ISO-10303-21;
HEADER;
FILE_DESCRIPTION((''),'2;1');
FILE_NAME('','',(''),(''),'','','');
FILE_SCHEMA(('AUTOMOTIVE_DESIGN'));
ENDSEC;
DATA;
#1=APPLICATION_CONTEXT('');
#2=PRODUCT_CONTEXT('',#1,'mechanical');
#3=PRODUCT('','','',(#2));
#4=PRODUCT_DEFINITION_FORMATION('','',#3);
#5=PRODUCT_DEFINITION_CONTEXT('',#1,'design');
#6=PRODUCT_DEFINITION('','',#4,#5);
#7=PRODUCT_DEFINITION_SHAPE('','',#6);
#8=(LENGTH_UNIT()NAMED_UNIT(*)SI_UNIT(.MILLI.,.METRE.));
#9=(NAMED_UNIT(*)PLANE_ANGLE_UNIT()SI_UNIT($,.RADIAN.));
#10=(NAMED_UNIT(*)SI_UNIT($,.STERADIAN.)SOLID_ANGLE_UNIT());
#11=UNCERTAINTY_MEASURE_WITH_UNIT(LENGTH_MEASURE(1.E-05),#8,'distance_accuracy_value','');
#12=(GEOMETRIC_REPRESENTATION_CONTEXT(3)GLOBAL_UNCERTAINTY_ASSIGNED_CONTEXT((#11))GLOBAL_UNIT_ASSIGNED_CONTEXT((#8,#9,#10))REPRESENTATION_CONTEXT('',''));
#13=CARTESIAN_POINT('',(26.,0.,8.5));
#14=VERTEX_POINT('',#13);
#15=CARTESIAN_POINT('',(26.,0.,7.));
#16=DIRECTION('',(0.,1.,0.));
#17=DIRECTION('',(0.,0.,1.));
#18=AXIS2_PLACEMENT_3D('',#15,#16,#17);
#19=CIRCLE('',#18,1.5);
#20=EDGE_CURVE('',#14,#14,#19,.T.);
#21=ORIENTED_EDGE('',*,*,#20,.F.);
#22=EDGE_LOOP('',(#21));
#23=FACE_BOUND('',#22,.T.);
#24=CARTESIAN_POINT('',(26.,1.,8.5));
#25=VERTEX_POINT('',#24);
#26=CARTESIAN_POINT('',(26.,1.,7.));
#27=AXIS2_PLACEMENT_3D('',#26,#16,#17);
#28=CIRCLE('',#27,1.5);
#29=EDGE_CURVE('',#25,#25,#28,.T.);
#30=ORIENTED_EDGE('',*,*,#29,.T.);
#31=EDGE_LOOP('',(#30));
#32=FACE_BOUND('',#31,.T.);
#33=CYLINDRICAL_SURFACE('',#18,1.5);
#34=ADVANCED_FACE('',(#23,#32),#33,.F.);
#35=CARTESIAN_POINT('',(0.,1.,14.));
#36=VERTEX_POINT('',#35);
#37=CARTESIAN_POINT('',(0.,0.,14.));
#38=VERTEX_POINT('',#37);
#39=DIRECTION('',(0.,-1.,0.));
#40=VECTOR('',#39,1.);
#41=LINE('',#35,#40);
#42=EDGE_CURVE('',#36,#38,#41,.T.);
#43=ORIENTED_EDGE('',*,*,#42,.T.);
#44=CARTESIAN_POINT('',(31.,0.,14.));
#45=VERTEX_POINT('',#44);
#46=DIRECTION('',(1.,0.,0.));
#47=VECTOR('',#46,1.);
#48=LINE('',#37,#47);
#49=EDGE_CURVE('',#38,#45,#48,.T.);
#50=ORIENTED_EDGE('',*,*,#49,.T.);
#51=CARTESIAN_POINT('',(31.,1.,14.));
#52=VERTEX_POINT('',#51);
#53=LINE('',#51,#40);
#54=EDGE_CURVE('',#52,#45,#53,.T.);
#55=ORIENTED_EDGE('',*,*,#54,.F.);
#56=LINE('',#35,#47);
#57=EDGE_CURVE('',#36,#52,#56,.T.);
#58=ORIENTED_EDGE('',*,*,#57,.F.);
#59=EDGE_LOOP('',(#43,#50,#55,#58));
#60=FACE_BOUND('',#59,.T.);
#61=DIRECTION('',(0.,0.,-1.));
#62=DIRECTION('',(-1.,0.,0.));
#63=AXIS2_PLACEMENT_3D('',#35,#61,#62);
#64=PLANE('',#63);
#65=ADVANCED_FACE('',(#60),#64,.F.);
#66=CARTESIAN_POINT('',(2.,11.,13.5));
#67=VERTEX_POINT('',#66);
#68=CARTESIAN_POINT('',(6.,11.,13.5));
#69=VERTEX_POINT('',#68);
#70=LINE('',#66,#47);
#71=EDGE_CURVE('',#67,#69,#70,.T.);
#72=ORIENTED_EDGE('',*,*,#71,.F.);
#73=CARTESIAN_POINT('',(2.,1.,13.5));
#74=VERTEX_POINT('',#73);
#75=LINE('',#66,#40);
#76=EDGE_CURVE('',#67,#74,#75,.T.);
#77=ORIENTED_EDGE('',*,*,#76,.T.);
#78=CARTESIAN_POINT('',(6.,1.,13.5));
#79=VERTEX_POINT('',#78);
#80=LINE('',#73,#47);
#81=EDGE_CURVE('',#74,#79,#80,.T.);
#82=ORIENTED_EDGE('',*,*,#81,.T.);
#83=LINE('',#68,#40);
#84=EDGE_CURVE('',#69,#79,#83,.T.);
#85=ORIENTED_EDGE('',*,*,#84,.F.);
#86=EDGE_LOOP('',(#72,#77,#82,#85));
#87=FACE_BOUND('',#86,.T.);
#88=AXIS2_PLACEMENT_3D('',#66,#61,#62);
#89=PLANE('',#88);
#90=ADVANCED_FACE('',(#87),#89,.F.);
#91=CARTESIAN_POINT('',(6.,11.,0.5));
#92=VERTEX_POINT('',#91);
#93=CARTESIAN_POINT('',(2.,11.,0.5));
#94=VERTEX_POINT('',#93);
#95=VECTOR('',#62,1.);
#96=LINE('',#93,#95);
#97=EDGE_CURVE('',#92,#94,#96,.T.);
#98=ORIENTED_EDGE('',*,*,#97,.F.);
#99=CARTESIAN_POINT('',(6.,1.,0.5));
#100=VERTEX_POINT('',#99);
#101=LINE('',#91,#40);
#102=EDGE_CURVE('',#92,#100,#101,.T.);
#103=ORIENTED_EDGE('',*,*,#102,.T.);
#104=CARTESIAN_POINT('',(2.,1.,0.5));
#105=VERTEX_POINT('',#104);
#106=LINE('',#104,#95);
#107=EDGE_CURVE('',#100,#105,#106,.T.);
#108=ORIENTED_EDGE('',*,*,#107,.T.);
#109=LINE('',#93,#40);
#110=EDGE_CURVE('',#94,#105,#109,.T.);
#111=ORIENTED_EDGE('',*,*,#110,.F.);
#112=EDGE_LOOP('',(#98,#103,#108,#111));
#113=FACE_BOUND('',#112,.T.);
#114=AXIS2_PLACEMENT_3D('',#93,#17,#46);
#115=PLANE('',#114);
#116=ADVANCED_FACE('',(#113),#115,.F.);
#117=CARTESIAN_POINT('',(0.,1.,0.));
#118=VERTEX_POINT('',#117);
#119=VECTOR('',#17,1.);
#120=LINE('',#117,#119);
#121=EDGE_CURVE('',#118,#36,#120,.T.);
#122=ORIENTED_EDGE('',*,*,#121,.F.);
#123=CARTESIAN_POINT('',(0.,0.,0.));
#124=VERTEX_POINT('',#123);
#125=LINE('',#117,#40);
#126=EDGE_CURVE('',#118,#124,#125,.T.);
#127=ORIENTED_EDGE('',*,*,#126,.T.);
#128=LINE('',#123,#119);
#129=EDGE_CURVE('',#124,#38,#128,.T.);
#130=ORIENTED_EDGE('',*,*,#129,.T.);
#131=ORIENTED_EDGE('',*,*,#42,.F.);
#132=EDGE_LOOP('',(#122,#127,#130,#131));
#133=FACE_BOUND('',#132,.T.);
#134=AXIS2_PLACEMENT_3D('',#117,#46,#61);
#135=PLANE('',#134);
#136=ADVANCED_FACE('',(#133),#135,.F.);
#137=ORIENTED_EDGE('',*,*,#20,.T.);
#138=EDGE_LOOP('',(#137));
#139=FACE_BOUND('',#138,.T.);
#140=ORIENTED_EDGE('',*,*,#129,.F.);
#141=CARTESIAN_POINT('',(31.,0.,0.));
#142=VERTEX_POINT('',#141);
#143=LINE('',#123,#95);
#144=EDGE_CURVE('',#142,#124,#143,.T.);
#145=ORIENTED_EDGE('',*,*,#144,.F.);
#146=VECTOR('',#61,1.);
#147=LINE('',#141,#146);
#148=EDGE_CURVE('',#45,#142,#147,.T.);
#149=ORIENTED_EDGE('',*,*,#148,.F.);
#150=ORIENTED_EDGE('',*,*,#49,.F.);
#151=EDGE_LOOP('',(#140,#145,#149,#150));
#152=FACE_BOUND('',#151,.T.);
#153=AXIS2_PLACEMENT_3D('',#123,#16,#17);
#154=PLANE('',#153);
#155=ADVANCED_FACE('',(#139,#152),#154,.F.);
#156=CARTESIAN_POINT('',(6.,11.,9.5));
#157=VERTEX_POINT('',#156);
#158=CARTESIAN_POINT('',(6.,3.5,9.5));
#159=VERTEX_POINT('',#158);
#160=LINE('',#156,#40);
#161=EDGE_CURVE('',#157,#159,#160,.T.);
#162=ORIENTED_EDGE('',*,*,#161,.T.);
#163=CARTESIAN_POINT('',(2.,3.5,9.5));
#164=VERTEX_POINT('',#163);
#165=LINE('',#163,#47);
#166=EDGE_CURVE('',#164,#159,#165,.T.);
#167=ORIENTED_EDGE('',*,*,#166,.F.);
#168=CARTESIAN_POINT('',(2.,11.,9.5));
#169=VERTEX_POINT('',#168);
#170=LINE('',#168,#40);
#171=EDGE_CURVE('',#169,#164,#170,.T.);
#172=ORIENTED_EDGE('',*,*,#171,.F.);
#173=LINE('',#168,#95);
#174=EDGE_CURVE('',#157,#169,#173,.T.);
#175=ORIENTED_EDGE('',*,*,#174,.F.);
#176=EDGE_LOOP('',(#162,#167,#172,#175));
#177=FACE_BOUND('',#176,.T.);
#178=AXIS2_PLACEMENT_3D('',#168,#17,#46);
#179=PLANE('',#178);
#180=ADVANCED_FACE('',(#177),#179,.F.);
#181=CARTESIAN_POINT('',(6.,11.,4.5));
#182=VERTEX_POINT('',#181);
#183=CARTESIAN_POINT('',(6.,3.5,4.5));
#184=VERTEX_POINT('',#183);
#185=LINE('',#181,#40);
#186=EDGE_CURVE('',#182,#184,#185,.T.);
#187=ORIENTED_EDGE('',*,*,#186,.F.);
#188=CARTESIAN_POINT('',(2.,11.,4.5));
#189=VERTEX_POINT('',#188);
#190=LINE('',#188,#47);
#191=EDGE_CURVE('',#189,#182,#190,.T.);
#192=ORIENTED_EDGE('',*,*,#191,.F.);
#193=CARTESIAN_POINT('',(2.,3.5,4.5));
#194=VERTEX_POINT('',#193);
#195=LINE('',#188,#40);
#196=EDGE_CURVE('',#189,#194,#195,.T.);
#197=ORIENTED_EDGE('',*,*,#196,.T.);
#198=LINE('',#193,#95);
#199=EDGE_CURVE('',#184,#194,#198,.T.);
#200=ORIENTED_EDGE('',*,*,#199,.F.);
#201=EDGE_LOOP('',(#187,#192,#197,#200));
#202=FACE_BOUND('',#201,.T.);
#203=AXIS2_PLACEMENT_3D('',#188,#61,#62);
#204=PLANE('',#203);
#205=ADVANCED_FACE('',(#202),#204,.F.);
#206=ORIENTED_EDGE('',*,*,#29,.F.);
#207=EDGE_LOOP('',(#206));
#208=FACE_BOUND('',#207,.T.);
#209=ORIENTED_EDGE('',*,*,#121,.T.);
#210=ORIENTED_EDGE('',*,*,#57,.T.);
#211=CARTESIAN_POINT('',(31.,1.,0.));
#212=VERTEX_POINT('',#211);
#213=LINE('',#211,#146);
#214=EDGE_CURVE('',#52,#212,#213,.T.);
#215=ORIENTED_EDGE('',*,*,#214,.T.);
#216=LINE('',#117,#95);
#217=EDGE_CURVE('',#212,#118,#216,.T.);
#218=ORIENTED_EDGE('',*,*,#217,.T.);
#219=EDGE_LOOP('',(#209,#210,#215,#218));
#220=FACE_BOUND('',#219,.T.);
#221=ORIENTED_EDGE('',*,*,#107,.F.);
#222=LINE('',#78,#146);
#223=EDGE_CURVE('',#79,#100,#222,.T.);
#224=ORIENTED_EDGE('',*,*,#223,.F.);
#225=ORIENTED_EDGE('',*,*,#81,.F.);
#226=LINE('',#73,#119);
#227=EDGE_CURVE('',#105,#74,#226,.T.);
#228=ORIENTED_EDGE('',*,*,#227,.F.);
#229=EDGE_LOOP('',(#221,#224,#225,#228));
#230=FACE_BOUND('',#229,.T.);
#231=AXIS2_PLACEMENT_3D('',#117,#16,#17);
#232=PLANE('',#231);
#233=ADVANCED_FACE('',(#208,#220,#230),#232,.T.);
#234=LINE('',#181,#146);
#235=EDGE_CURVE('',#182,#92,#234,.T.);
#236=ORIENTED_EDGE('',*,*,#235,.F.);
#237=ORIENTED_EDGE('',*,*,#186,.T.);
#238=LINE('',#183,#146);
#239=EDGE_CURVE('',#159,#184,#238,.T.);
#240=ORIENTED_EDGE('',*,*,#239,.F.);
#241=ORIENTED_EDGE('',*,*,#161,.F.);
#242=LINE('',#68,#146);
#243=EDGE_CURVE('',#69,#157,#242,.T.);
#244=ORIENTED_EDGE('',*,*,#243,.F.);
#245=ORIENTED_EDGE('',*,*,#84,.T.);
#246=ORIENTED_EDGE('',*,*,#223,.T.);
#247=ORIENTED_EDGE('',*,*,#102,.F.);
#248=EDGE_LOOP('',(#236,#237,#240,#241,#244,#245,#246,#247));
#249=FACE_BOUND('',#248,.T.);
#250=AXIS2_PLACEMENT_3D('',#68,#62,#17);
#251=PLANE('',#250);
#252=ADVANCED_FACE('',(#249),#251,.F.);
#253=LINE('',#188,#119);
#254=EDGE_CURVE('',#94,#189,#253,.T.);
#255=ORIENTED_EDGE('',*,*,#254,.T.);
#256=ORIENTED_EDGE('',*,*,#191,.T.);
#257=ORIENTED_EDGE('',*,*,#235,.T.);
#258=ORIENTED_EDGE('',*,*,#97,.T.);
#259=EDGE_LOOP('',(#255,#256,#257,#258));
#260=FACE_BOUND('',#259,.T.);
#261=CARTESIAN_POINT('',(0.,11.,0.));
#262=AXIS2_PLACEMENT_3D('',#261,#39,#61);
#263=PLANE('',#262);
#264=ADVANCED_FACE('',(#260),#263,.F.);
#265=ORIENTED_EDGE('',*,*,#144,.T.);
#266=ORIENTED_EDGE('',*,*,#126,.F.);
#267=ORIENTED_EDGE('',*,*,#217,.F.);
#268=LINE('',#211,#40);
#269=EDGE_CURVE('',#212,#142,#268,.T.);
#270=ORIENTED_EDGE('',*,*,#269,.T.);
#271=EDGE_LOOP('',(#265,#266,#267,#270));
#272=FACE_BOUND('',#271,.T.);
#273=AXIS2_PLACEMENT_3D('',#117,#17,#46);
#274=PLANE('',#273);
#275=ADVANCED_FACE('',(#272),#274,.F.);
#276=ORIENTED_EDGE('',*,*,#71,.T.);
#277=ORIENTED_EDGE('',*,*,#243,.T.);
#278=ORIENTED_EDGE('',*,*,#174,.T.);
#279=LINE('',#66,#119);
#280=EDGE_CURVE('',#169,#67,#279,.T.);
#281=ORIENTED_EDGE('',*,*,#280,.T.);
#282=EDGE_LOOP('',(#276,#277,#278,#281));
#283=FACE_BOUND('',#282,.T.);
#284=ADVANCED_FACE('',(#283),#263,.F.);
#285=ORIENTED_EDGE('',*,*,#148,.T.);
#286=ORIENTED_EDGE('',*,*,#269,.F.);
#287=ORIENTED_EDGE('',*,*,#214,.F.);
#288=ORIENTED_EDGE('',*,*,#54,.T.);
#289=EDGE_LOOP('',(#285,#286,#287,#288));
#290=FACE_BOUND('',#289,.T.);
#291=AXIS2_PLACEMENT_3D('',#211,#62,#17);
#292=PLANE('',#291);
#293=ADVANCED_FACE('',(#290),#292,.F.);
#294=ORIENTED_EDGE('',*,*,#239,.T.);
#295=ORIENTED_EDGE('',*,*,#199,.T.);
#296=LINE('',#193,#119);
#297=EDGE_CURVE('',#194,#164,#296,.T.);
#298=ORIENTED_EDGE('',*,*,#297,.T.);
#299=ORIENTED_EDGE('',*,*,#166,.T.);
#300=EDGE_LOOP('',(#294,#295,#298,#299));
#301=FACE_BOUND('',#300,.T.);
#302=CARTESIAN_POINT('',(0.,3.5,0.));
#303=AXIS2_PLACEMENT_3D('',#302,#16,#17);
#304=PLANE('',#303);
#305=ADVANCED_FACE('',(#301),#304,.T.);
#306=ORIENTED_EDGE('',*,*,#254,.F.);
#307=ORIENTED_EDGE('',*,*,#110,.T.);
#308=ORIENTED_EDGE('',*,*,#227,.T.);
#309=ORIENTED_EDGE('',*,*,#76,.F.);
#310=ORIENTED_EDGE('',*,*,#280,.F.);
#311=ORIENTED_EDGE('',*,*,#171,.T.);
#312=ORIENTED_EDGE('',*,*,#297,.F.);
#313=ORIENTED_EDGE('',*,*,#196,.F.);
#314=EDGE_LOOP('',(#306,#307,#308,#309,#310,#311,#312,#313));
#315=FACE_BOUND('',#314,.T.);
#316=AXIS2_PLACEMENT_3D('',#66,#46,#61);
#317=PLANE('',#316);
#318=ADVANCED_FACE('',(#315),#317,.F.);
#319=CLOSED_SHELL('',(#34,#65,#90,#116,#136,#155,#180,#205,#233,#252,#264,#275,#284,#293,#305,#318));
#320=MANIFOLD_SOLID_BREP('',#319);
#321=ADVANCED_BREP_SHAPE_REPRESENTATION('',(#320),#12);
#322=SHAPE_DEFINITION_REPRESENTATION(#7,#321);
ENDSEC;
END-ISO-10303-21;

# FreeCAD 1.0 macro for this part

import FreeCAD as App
import Part
import Sketcher
Q = App.Units.Quantity


def add_polygon(sketch, points):
    """Adds a closed chain of lines whose ends are joined by coincident constraints."""
    first, n = sketch.GeometryCount, len(points)
    for a, b in zip(points, points[1:] + points[:1]):
        sketch.addGeometry(Part.LineSegment(App.Vector(*a, 0), App.Vector(*b, 0)), False)
    for i in range(n):
        sketch.addConstraint(Sketcher.Constraint("Coincident", first + i, 2, first + (i + 1) % n, 1))

doc = App.newDocument("Part")
params = doc.addObject("Spreadsheet::Sheet", "Params")
for row, (alias, value) in enumerate([
    ("sketch1_width", "31 mm"),
    ("sketch1_height", "14 mm"),
    ("pad1_length", "1 mm"),
    ("sketch2_width", "4 mm"),
    ("pad2_length", "10 mm"),
    ("sketch3_diameter", "3 mm"),
    ("sketch4_width", "4 mm"),
    ("sketch4_height", "5 mm"),
    ("pad3_length", "2.5 mm"),
], start=1):
    params.set(f"A{row}", alias)
    params.set(f"B{row}", "=" + value)
    params.setAlias(f"B{row}", alias)

body = doc.addObject("PartDesign::Body", "Body")

# Sketch on XZ plane
sketch1 = body.newObject("Sketcher::SketchObject", "Sketch")
sketch1.AttachmentSupport = (doc.getObject("XZ_Plane"), [""])
sketch1.MapMode = "FlatFace"
add_polygon(sketch1, [(0, 0), (0, 14), (31, 14), (31, 0)])  # lines 0-3
sketch1.addConstraint([
    Sketcher.Constraint("Vertical", 0),
    Sketcher.Constraint("Horizontal", 1),
    Sketcher.Constraint("Vertical", 2),
    Sketcher.Constraint("Horizontal", 3),
    Sketcher.Constraint("Coincident", 3, 2, -1, 1),
    Sketcher.Constraint("DistanceX", 1, 1, 1, 2, Q("31 mm")),
    Sketcher.Constraint("DistanceY", 0, 1, 0, 2, Q("14 mm")),
])
sketch1.setExpression("Constraints[9]", "Params.sketch1_width")
sketch1.setExpression("Constraints[10]", "Params.sketch1_height")
pad1 = body.newObject("PartDesign::Pad", "Pad")
pad1.Profile = sketch1
pad1.setExpression("Length", "Params.pad1_length")
pad1.Reversed = True

# Sketch on XZ plane
sketch2 = body.newObject("Sketcher::SketchObject", "Sketch001")
sketch2.AttachmentSupport = (doc.getObject("XZ_Plane"), [""])
sketch2.MapMode = "FlatFace"
sketch2.AttachmentOffset = App.Placement(App.Vector(0, 0, -1), App.Rotation())
add_polygon(sketch2, [(2, 9.5), (2, 13.5), (6, 13.5), (6, 9.5)])  # lines 0-3
add_polygon(sketch2, [(2, 0.5), (2, 4.5), (6, 4.5), (6, 0.5)])  # lines 4-7
sketch2.addConstraint([
    Sketcher.Constraint("Vertical", 0),
    Sketcher.Constraint("Horizontal", 1),
    Sketcher.Constraint("Vertical", 2),
    Sketcher.Constraint("Horizontal", 3),
    Sketcher.Constraint("Vertical", 4),
    Sketcher.Constraint("Horizontal", 5),
    Sketcher.Constraint("Vertical", 6),
    Sketcher.Constraint("Horizontal", 7),
    Sketcher.Constraint("Vertical", 3, 2, 4, 2),
    Sketcher.Constraint("Vertical", 2, 2, 5, 2),
    Sketcher.Constraint("Equal", 7, 0),
    Sketcher.Constraint("Equal", 2, 4),
    Sketcher.Constraint("DistanceX", 1, 1, 1, 2, Q("4 mm")),
    Sketcher.Constraint("DistanceX", -1, 1, 0, 2, Q("2 mm")),
    Sketcher.Constraint("DistanceY", 4, 2, 3, 2, Q("5 mm")),
    Sketcher.Constraint("DistanceY", -1, 1, 0, 2, Q("13.5 mm")),
])
sketch2.setExpression("Constraints[20]", "Params.sketch2_width")
pad2 = body.newObject("PartDesign::Pad", "Pad001")
pad2.Profile = sketch2
pad2.setExpression("Length", "Params.pad2_length")
pad2.Reversed = True

# Sketch on XZ plane
sketch3 = body.newObject("Sketcher::SketchObject", "Sketch002")
sketch3.AttachmentSupport = (doc.getObject("XZ_Plane"), [""])
sketch3.MapMode = "FlatFace"
sketch3.AttachmentOffset = App.Placement(App.Vector(0, 0, -1), App.Rotation())
sketch3.addGeometry(Part.Circle(App.Vector(26, 7, 0), App.Vector(0, 0, 1), 1.5), False)
sketch3.addConstraint([
    Sketcher.Constraint("Diameter", 0, Q("3 mm")),
    Sketcher.Constraint("DistanceX", -1, 1, 0, 3, Q("26 mm")),
    Sketcher.Constraint("DistanceY", -1, 1, 0, 3, Q("7 mm")),
])
sketch3.setExpression("Constraints[0]", "Params.sketch3_diameter")
pocket1 = body.newObject("PartDesign::Pocket", "Pocket")
pocket1.Profile = sketch3
pocket1.Type = "ThroughAll"
pocket1.Reversed = True

# Sketch on XZ plane
sketch4 = body.newObject("Sketcher::SketchObject", "Sketch003")
sketch4.AttachmentSupport = (doc.getObject("XZ_Plane"), [""])
sketch4.MapMode = "FlatFace"
sketch4.AttachmentOffset = App.Placement(App.Vector(0, 0, -1), App.Rotation())
add_polygon(sketch4, [(2, 4.5), (2, 9.5), (6, 9.5), (6, 4.5)])  # lines 0-3
sketch4.addConstraint([
    Sketcher.Constraint("Vertical", 0),
    Sketcher.Constraint("Horizontal", 1),
    Sketcher.Constraint("Vertical", 2),
    Sketcher.Constraint("Horizontal", 3),
    Sketcher.Constraint("DistanceX", 1, 1, 1, 2, Q("4 mm")),
    Sketcher.Constraint("DistanceY", 0, 1, 0, 2, Q("5 mm")),
    Sketcher.Constraint("DistanceX", -1, 1, 0, 2, Q("2 mm")),
    Sketcher.Constraint("DistanceY", -1, 1, 0, 2, Q("9.5 mm")),
])
sketch4.setExpression("Constraints[8]", "Params.sketch4_width")
sketch4.setExpression("Constraints[9]", "Params.sketch4_height")
pad3 = body.newObject("PartDesign::Pad", "Pad002")
pad3.Profile = sketch4
pad3.setExpression("Length", "Params.pad3_length")
pad3.Reversed = True

doc.recompute()
